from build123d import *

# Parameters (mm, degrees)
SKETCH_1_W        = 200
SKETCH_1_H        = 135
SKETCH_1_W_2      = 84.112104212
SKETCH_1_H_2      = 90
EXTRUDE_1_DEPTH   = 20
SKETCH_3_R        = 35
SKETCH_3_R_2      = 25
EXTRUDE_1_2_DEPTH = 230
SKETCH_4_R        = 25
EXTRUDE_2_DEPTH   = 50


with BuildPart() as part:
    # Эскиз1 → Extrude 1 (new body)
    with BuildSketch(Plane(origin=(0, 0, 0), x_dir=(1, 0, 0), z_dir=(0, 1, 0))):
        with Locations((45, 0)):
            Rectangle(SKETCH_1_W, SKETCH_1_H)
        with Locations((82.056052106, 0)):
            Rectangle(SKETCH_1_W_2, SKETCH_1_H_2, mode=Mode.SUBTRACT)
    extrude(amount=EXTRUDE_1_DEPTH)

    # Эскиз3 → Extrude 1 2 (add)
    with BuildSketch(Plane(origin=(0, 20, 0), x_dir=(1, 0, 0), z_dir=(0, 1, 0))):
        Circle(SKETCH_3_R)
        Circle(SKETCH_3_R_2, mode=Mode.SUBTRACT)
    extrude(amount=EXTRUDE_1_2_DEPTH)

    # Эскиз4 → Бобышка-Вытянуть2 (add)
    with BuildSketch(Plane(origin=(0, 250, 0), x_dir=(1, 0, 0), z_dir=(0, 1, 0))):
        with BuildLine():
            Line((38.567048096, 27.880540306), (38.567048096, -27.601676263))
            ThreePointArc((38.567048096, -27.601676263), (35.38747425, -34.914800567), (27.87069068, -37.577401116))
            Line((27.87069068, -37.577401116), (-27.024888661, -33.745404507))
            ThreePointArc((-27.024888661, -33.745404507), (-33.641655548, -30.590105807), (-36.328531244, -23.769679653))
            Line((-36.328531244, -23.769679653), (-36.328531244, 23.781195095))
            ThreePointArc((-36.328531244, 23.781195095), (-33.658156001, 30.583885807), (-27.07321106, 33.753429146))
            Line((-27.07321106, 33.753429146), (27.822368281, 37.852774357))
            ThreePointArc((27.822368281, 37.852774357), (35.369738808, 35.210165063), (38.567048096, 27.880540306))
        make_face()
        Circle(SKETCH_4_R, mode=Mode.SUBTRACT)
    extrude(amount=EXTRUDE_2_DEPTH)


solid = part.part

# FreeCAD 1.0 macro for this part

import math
import FreeCAD as App
import Part
import Sketcher
from FreeCAD import Vector

doc = App.newDocument("Part")
body = doc.addObject("PartDesign::Body", "Body")

sketch1 = body.newObject("Sketcher::SketchObject", "Sketch")
sketch1.AttachmentSupport = (doc.getObject("XZ_Plane"), [""])
sketch1.MapMode = "FlatFace"
sketch1.addGeometry([
    Part.LineSegment(Vector(-55, -68, 0), Vector(-55, 68, 0)),
    Part.LineSegment(Vector(-55, 68, 0), Vector(145, 68, 0)),
    Part.LineSegment(Vector(145, 68, 0), Vector(145, -68, 0)),
    Part.LineSegment(Vector(145, -68, 0), Vector(-55, -68, 0)),
    Part.LineSegment(Vector(124, 45, 0), Vector(40, 45, 0)),
    Part.LineSegment(Vector(40, 45, 0), Vector(40, -45, 0)),
    Part.LineSegment(Vector(40, -45, 0), Vector(124, -45, 0)),
    Part.LineSegment(Vector(124, -45, 0), Vector(124, 45, 0)),
], False)
sketch1.addConstraint([
    Sketcher.Constraint("Coincident", 0, 2, 1, 1),
    Sketcher.Constraint("Coincident", 1, 2, 2, 1),
    Sketcher.Constraint("Coincident", 2, 2, 3, 1),
    Sketcher.Constraint("Coincident", 3, 2, 0, 1),
    Sketcher.Constraint("Coincident", 4, 2, 5, 1),
    Sketcher.Constraint("Coincident", 5, 2, 6, 1),
    Sketcher.Constraint("Coincident", 6, 2, 7, 1),
    Sketcher.Constraint("Coincident", 7, 2, 4, 1),
    Sketcher.Constraint("Vertical", 0),
    Sketcher.Constraint("Horizontal", 1),
    Sketcher.Constraint("Vertical", 2),
    Sketcher.Constraint("Horizontal", 3),
    Sketcher.Constraint("Horizontal", 4),
    Sketcher.Constraint("Vertical", 5),
    Sketcher.Constraint("Horizontal", 6),
    Sketcher.Constraint("Vertical", 7),
    Sketcher.Constraint("DistanceX", 1, 1, 1, 2, 200.0),
    Sketcher.Constraint("DistanceY", 0, 1, 0, 2, 135.0),
    Sketcher.Constraint("DistanceY", 5, 2, 5, 1, 90.0),
    Sketcher.Constraint("DistanceX", 0, 2, -1, 1, 55.0),
    Sketcher.Constraint("DistanceX", -1, 1, 4, 2, 40.0),
    Sketcher.Constraint("DistanceY", -1, 1, 4, 2, 45.0),
    Sketcher.Constraint("DistanceY", -1, 1, 0, 2, 67.5),
    Sketcher.Constraint("DistanceX", 4, 2, 4, 1, 84.112104),
])
pad1 = body.newObject("PartDesign::Pad", "Pad")
pad1.Profile = sketch1
pad1.Length = 20
pad1.Reversed = True

sketch2 = body.newObject("Sketcher::SketchObject", "Sketch001")
sketch2.AttachmentSupport = (doc.getObject("XZ_Plane"), [""])
sketch2.MapMode = "FlatFace"
sketch2.AttachmentOffset = App.Placement(Vector(0, 0, -20), App.Rotation())
sketch2.addGeometry([
    Part.Circle(Vector(0, 0, 0), Vector(0, 0, 1), 35),
    Part.Circle(Vector(0, 0, 0), Vector(0, 0, 1), 25),
], False)
sketch2.addConstraint([
    Sketcher.Constraint("Coincident", 0, 3, -1, 1),
    Sketcher.Constraint("Coincident", 1, 3, -1, 1),
    Sketcher.Constraint("Diameter", 0, 70.0),
    Sketcher.Constraint("Diameter", 1, 50.0),
])
pad2 = body.newObject("PartDesign::Pad", "Pad001")
pad2.Profile = sketch2
pad2.Length = 230
pad2.Reversed = True

sketch3 = body.newObject("Sketcher::SketchObject", "Sketch002")
sketch3.AttachmentSupport = (doc.getObject("XZ_Plane"), [""])
sketch3.MapMode = "FlatFace"
sketch3.AttachmentOffset = App.Placement(Vector(0, 0, -250), App.Rotation())
sketch3.addGeometry([
    Part.LineSegment(Vector(39, 28, 0), Vector(39, -28, 0)),
    Part.ArcOfCircle(Part.Circle(Vector(29, -28, 0), Vector(0, 0, 1), 10), math.radians(-94), math.radians(0)),
    Part.LineSegment(Vector(28, -38, 0), Vector(-27, -34, 0)),
    Part.ArcOfCircle(Part.Circle(Vector(-26, -24, 0), Vector(0, 0, 1), 10), math.radians(180), math.radians(266)),
    Part.LineSegment(Vector(-36, -24, 0), Vector(-36, 24, 0)),
    Part.ArcOfCircle(Part.Circle(Vector(-26, 24, 0), Vector(0, 0, 1), 10), math.radians(94), math.radians(180)),
    Part.LineSegment(Vector(-27, 34, 0), Vector(28, 38, 0)),
    Part.ArcOfCircle(Part.Circle(Vector(29, 28, 0), Vector(0, 0, 1), 10), math.radians(0), math.radians(94)),
    Part.Circle(Vector(0, 0, 0), Vector(0, 0, 1), 25),
], False)
sketch3.addConstraint([
    Sketcher.Constraint("Tangent", 0, 2, 1, 2),
    Sketcher.Constraint("Tangent", 1, 1, 2, 1),
    Sketcher.Constraint("Tangent", 2, 2, 3, 2),
    Sketcher.Constraint("Tangent", 3, 1, 4, 1),
    Sketcher.Constraint("Tangent", 4, 2, 5, 2),
    Sketcher.Constraint("Tangent", 5, 1, 6, 1),
    Sketcher.Constraint("Tangent", 6, 2, 7, 2),
    Sketcher.Constraint("Tangent", 7, 1, 0, 1),
    Sketcher.Constraint("Vertical", 0),
    Sketcher.Constraint("Vertical", 4),
    Sketcher.Constraint("Coincident", 8, 3, -1, 1),
    Sketcher.Constraint("Equal", 1, 3),
    Sketcher.Constraint("Equal", 3, 5),
    Sketcher.Constraint("Equal", 5, 7),
    Sketcher.Constraint("Diameter", 8, 50.0),
    Sketcher.Constraint("Radius", 1, 10.0),
    Sketcher.Constraint("DistanceY", -1, 1, 6, 2, 37.577401),
    Sketcher.Constraint("DistanceX", 3, 3, 1, 1, 54.1509),
    Sketcher.Constraint("DistanceY", 3, 3, 5, 1, 57.5266),
    Sketcher.Constraint("DistanceY", 0, 2, 0, 1, 55.482217),
    Sketcher.Constraint("DistanceY", 4, 1, 4, 2, 47.550875),
    Sketcher.Constraint("DistanceX", -1, 1, 1, 3, 28.567048),
])
pad3 = body.newObject("PartDesign::Pad", "Pad002")
pad3.Profile = sketch3
pad3.Length = 50
pad3.Reversed = True

doc.recompute()
